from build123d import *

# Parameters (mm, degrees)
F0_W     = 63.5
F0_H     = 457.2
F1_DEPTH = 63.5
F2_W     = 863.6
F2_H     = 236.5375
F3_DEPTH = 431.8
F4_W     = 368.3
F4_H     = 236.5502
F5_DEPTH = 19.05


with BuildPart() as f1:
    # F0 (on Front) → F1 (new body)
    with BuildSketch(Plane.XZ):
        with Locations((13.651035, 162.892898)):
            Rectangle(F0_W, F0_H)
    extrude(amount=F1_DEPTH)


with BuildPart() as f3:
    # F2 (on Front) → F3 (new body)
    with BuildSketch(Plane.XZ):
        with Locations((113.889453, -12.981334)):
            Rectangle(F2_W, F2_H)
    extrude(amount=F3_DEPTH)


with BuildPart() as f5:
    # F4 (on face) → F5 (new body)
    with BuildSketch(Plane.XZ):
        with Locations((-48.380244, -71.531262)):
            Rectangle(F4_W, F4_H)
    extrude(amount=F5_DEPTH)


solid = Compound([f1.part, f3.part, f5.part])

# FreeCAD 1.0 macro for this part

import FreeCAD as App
import Part
import Sketcher

V = App.Vector
Q = App.Units.Quantity

doc = App.newDocument("Part")
params = doc.addObject("Spreadsheet::Sheet", "Params")
for row, (alias, value) in enumerate([
    ("sketch1_height", "18 in"),
    ("sketch1_width", "2.5 in"),
    ("pad1_length", "2.5 in"),
    ("sketch2_width", "34 in"),
    ("sketch2_height", "9.3125 in"),
    ("pad2_length", "17 in"),
    ("sketch3_width", "14.5 in"),
    ("sketch3_height", "9.313 in"),
    ("pad3_length", "0.75 in"),
], start=1):
    params.set(f"A{row}", alias)
    params.set(f"B{row}", "=" + value)
    params.setAlias(f"B{row}", alias)

body = doc.addObject("PartDesign::Body", "Body")

# Sketch on XZ plane
sketch1 = body.newObject("Sketcher::SketchObject", "Sketch")
sketch1.AttachmentSupport = (doc.getObject("XZ_Plane"), [""])
sketch1.MapMode = "FlatFace"
sketch1.addGeometry([
    Part.LineSegment(V(-18.098965, 391.492898, 0), V(-18.098965, -65.707102, 0)),
    Part.LineSegment(V(-18.098965, -65.707102, 0), V(45.401035, -65.707102, 0)),
    Part.LineSegment(V(45.401035, -65.707102, 0), V(45.401035, 391.492898, 0)),
    Part.LineSegment(V(45.401035, 391.492898, 0), V(-18.098965, 391.492898, 0)),
], False)
sketch1.addConstraint([
    Sketcher.Constraint("Coincident", 0, 2, 1, 1),
    Sketcher.Constraint("Coincident", 1, 2, 2, 1),
    Sketcher.Constraint("Coincident", 2, 2, 3, 1),
    Sketcher.Constraint("Coincident", 3, 2, 0, 1),
    Sketcher.Constraint("Vertical", 0),
    Sketcher.Constraint("Horizontal", 1),
    Sketcher.Constraint("Vertical", 2),
    Sketcher.Constraint("Horizontal", 3),
    Sketcher.Constraint("DistanceY", 0, 2, 0, 1, Q("18 in")),
    Sketcher.Constraint("DistanceX", 1, 1, 1, 2, Q("2.5 in")),
    Sketcher.Constraint("DistanceY", -1, 1, 2, 2, 391.492898),
    Sketcher.Constraint("DistanceX", 0, 2, -1, 1, 18.098965),
])
sketch1.setExpression("Constraints[8]", "Params.sketch1_height")
sketch1.setExpression("Constraints[9]", "Params.sketch1_width")
pad1 = body.newObject("PartDesign::Pad", "Pad")
pad1.Profile = sketch1
pad1.setExpression("Length", "Params.pad1_length")
body2 = doc.addObject("PartDesign::Body", "Body001")

# Sketch on XZ plane
sketch2 = body2.newObject("Sketcher::SketchObject", "Sketch001")
sketch2.AttachmentSupport = (doc.getObject("XZ_Plane001"), [""])
sketch2.MapMode = "FlatFace"
sketch2.addGeometry([
    Part.LineSegment(V(-317.910547, 105.287416, 0), V(-317.910547, -131.250084, 0)),
    Part.LineSegment(V(-317.910547, -131.250084, 0), V(545.689453, -131.250084, 0)),
    Part.LineSegment(V(545.689453, -131.250084, 0), V(545.689453, 105.287416, 0)),
    Part.LineSegment(V(545.689453, 105.287416, 0), V(-317.910547, 105.287416, 0)),
], False)
sketch2.addConstraint([
    Sketcher.Constraint("Coincident", 0, 2, 1, 1),
    Sketcher.Constraint("Coincident", 1, 2, 2, 1),
    Sketcher.Constraint("Coincident", 2, 2, 3, 1),
    Sketcher.Constraint("Coincident", 3, 2, 0, 1),
    Sketcher.Constraint("Vertical", 0),
    Sketcher.Constraint("Horizontal", 1),
    Sketcher.Constraint("Vertical", 2),
    Sketcher.Constraint("Horizontal", 3),
    Sketcher.Constraint("DistanceX", 1, 1, 1, 2, Q("34 in")),
    Sketcher.Constraint("DistanceY", 0, 2, 0, 1, Q("9.3125 in")),
    Sketcher.Constraint("DistanceX", 0, 2, -1, 1, 317.910547),
    Sketcher.Constraint("DistanceY", 0, 2, -1, 1, 131.250084),
])
sketch2.setExpression("Constraints[8]", "Params.sketch2_width")
sketch2.setExpression("Constraints[9]", "Params.sketch2_height")
pad2 = body2.newObject("PartDesign::Pad", "Pad001")
pad2.Profile = sketch2
pad2.setExpression("Length", "Params.pad2_length")
body3 = doc.addObject("PartDesign::Body", "Body002")

# Sketch on XZ plane
sketch3 = body3.newObject("Sketcher::SketchObject", "Sketch002")
sketch3.AttachmentSupport = (doc.getObject("XZ_Plane002"), [""])
sketch3.MapMode = "FlatFace"
sketch3.addGeometry([
    Part.LineSegment(V(-232.530244, 46.743838, 0), V(-232.530244, -189.806362, 0)),
    Part.LineSegment(V(-232.530244, -189.806362, 0), V(135.769756, -189.806362, 0)),
    Part.LineSegment(V(135.769756, -189.806362, 0), V(135.769756, 46.743838, 0)),
    Part.LineSegment(V(135.769756, 46.743838, 0), V(-232.530244, 46.743838, 0)),
], False)
sketch3.addConstraint([
    Sketcher.Constraint("Coincident", 0, 2, 1, 1),
    Sketcher.Constraint("Coincident", 1, 2, 2, 1),
    Sketcher.Constraint("Coincident", 2, 2, 3, 1),
    Sketcher.Constraint("Coincident", 3, 2, 0, 1),
    Sketcher.Constraint("Vertical", 0),
    Sketcher.Constraint("Horizontal", 1),
    Sketcher.Constraint("Vertical", 2),
    Sketcher.Constraint("Horizontal", 3),
    Sketcher.Constraint("DistanceX", 1, 1, 1, 2, Q("14.5 in")),
    Sketcher.Constraint("DistanceY", 0, 2, 0, 1, Q("9.313 in")),
    Sketcher.Constraint("DistanceY", 0, 2, -1, 1, 189.806362),
    Sketcher.Constraint("DistanceX", 0, 2, -1, 1, 232.530244),
])
sketch3.setExpression("Constraints[8]", "Params.sketch3_width")
sketch3.setExpression("Constraints[9]", "Params.sketch3_height")
pad3 = body3.newObject("PartDesign::Pad", "Pad002")
pad3.Profile = sketch3
pad3.setExpression("Length", "Params.pad3_length")

doc.recompute()
